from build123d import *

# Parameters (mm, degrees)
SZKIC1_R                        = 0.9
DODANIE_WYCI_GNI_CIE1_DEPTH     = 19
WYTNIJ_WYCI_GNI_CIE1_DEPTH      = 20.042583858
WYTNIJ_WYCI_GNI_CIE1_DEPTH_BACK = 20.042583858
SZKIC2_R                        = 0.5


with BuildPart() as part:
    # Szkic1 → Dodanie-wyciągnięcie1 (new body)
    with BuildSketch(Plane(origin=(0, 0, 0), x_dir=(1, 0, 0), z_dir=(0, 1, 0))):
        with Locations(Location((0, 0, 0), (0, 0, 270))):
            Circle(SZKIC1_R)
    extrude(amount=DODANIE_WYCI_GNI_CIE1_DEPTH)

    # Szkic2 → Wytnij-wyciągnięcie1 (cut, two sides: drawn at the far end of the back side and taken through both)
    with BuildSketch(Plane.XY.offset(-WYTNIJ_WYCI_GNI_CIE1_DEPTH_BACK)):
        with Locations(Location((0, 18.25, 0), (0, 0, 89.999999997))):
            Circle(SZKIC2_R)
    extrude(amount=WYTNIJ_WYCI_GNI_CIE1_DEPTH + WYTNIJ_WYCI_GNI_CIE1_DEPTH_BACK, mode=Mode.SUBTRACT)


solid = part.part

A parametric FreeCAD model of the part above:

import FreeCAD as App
import Part
import Sketcher
from FreeCAD import Vector
Q = App.Units.Quantity

doc = App.newDocument("Part")
body = doc.addObject("PartDesign::Body", "Body")

# Sketch on XZ plane
sketch1 = body.newObject("Sketcher::SketchObject", "Sketch")
sketch1.AttachmentSupport = (doc.getObject("XZ_Plane"), [""])
sketch1.MapMode = "FlatFace"
sketch1.addGeometry(Part.Circle(Vector(0, 0, 0), Vector(0, 0, 1), 0.9), False)
sketch1.addConstraint([
    Sketcher.Constraint("Coincident", 0, 3, -1, 1),
    Sketcher.Constraint("Diameter", 0, Q("1.8 mm")),
])
pad1 = body.newObject("PartDesign::Pad", "Pad")
pad1.Profile = sketch1
pad1.Length = 19
pad1.Reversed = True

# Sketch on XY plane
sketch2 = body.newObject("Sketcher::SketchObject", "Sketch001")
sketch2.AttachmentSupport = (doc.getObject("XY_Plane"), [""])
sketch2.MapMode = "FlatFace"
sketch2.addGeometry(Part.Circle(Vector(0, 18.2, 0), Vector(0, 0, 1), 0.5), False)
sketch2.addConstraint([
    Sketcher.Constraint("PointOnObject", 0, 3, -2),
    Sketcher.Constraint("Diameter", 0, Q("1 mm")),
    Sketcher.Constraint("DistanceY", -1, 1, 0, 3, Q("18.25 mm")),
])
pocket1 = body.newObject("PartDesign::Pocket", "Pocket")
pocket1.Profile = sketch2
pocket1.Type = "ThroughAll"
pocket1.Midplane = True

doc.recompute()
